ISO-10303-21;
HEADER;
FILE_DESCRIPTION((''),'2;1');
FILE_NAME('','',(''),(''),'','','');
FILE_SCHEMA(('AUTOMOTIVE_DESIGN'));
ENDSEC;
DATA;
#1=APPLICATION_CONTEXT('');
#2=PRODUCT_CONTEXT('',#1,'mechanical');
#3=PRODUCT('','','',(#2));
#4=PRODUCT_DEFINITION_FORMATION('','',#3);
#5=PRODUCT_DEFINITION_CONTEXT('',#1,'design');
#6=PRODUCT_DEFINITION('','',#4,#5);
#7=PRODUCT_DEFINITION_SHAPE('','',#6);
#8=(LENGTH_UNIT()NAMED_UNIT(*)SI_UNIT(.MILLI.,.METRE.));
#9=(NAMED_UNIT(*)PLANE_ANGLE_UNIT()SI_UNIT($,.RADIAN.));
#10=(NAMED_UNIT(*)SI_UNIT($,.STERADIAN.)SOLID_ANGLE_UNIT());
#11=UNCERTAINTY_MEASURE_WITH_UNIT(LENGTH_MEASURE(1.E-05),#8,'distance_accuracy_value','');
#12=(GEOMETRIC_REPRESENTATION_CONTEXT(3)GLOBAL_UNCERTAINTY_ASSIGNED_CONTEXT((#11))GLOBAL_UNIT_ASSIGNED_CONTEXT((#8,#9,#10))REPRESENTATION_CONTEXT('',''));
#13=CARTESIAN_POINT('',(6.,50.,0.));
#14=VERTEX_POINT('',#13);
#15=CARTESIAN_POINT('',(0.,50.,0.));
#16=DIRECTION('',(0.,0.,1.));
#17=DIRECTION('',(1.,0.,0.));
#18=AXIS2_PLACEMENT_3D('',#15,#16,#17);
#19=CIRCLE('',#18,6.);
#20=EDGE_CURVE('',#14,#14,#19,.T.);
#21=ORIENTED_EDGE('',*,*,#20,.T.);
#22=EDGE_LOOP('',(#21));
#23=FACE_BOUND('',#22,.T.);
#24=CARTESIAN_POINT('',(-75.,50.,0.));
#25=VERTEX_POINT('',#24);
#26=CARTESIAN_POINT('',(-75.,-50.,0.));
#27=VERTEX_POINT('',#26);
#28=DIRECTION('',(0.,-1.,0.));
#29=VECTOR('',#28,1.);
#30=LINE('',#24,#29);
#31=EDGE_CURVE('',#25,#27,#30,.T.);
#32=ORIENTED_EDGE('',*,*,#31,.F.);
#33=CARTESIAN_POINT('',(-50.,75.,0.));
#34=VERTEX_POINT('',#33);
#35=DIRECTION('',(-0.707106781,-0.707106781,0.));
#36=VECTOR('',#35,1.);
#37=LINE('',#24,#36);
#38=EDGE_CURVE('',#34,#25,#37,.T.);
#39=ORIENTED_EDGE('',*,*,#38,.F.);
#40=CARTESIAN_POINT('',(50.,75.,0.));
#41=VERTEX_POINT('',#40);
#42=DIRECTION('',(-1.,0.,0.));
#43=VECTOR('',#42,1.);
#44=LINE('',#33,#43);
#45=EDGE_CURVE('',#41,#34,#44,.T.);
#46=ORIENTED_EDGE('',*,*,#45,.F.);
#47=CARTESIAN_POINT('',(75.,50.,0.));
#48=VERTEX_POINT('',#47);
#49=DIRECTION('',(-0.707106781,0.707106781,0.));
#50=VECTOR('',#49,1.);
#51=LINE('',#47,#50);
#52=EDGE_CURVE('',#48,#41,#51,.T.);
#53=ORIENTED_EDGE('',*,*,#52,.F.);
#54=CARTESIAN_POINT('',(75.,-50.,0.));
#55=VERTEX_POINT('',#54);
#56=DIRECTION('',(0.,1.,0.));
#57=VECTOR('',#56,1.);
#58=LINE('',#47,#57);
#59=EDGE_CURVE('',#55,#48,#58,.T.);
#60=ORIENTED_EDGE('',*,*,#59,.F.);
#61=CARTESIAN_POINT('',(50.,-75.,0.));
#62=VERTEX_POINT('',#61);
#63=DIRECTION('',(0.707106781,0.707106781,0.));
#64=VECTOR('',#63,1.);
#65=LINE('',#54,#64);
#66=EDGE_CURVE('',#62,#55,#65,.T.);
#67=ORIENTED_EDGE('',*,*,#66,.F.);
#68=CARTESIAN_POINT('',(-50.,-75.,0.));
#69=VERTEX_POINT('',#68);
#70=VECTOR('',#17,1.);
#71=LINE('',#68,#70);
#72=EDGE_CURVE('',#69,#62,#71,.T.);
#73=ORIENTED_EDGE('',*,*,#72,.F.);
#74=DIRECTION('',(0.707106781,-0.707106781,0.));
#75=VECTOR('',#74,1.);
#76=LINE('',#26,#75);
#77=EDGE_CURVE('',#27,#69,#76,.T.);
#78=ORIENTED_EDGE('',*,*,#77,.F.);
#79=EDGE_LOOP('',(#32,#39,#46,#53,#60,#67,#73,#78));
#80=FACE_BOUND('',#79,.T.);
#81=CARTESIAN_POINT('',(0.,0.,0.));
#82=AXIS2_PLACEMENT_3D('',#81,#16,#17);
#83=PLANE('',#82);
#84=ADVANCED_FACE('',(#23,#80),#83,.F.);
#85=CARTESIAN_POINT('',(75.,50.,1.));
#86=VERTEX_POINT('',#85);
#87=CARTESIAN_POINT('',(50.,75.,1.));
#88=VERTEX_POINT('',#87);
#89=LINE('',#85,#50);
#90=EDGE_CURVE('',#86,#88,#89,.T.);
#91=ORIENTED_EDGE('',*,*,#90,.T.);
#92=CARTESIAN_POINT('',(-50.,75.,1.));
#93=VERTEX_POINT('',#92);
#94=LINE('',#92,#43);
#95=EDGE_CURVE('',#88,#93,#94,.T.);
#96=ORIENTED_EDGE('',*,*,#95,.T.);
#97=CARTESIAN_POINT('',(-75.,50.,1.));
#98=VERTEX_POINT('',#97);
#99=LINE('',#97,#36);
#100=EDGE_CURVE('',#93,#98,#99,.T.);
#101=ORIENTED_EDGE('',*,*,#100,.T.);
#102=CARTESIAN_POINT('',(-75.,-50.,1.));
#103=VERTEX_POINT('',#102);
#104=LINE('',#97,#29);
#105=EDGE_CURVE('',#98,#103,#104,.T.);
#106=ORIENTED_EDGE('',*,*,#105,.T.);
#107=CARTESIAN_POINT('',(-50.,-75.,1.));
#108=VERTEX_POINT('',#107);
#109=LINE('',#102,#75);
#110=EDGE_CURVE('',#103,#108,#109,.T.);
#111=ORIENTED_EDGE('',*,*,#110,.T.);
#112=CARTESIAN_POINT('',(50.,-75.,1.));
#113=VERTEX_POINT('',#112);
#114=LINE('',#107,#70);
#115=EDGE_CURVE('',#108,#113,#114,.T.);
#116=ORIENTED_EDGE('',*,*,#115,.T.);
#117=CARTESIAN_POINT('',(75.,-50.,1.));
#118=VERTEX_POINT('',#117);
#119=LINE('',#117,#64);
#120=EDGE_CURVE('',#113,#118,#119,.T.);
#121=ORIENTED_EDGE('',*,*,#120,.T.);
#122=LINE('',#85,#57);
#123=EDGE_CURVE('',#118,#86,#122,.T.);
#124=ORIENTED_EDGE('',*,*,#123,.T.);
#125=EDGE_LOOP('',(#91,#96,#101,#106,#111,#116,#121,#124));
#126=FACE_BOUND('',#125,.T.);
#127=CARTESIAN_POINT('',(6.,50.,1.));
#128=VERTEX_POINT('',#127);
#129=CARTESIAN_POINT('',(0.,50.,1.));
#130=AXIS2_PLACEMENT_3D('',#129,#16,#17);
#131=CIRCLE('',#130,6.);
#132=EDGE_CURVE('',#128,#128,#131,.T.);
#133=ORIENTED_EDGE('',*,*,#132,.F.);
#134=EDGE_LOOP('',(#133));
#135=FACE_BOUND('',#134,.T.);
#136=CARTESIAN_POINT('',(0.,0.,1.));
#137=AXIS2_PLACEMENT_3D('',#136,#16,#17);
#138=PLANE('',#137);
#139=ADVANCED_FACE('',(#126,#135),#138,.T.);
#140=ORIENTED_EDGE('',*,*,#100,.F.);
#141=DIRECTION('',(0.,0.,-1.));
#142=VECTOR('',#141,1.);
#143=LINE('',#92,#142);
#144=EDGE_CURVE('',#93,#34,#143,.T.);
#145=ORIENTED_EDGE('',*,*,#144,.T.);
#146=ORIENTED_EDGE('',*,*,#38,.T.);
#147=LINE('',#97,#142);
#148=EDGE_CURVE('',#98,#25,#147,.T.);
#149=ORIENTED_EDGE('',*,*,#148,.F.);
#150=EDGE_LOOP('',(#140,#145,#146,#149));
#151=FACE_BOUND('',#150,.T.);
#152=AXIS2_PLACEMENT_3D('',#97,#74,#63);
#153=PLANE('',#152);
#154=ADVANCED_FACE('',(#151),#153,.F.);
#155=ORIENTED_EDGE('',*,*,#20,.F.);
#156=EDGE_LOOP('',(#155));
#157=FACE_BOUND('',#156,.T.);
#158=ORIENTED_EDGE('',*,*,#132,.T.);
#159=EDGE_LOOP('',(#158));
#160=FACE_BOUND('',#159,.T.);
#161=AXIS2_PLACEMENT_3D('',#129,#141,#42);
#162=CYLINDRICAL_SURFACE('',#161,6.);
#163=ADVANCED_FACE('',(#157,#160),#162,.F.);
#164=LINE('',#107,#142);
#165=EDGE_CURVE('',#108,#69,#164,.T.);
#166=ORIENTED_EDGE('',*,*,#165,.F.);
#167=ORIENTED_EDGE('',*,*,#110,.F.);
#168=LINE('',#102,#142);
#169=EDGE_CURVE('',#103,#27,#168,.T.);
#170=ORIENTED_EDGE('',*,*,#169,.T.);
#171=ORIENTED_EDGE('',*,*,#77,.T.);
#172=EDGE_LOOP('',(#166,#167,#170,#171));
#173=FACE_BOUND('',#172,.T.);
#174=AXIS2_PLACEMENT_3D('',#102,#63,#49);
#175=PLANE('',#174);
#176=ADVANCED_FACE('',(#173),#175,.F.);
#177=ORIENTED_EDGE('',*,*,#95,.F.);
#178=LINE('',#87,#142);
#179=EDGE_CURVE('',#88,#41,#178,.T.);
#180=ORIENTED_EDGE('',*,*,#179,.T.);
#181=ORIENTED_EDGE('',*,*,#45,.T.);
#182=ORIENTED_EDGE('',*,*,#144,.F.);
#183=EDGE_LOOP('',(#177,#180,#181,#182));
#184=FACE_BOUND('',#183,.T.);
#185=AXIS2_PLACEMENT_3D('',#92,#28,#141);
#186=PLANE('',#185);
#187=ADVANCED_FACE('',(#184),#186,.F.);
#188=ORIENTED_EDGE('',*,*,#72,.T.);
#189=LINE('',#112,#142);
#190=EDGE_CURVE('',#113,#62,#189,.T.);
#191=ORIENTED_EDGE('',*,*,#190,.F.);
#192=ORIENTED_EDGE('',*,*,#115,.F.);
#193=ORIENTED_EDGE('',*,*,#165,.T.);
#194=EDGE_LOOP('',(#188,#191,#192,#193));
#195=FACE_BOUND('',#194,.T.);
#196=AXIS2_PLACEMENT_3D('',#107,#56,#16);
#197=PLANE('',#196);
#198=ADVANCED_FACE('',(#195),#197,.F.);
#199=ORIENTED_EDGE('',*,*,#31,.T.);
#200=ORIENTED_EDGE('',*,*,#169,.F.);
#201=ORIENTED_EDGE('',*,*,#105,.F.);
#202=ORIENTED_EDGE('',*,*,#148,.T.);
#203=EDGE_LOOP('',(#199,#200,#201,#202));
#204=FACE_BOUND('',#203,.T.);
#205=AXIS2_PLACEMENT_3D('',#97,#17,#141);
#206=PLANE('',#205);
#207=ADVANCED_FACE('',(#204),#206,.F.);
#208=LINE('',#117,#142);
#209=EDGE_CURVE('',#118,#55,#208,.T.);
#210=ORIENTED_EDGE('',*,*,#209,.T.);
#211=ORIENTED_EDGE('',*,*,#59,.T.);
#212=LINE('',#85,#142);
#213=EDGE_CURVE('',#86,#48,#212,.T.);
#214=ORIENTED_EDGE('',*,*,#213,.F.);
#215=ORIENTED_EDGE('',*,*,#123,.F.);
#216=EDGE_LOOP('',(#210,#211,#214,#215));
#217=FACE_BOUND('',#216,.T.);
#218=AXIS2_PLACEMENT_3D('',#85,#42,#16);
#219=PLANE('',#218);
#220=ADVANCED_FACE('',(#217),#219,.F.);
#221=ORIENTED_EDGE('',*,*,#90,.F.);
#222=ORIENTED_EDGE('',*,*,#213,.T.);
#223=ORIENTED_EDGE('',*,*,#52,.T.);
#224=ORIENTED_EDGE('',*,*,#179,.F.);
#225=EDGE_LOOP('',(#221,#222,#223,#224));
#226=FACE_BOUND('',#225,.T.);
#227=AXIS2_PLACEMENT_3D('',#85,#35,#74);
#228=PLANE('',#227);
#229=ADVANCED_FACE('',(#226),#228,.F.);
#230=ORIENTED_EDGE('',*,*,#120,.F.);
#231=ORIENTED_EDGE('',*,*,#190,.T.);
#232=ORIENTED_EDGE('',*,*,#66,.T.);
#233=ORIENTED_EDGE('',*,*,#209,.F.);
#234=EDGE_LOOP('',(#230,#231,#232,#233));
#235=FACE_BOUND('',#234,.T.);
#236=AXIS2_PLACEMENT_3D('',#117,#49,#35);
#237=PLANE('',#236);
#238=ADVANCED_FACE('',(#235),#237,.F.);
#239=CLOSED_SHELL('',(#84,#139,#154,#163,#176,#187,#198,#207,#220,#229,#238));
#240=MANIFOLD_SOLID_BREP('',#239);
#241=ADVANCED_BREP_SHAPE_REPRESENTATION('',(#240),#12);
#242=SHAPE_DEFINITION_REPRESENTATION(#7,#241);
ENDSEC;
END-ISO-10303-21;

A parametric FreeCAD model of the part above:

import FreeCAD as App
import Part
import Sketcher

V = App.Vector


def add_polygon(sketch, points):
    """Adds a closed chain of lines whose ends are joined by coincident constraints."""
    first, n = sketch.GeometryCount, len(points)
    for a, b in zip(points, points[1:] + points[:1]):
        sketch.addGeometry(Part.LineSegment(App.Vector(*a, 0), App.Vector(*b, 0)), False)
    for i in range(n):
        sketch.addConstraint(Sketcher.Constraint("Coincident", first + i, 2, first + (i + 1) % n, 1))

doc = App.newDocument("Part")
body = doc.addObject("PartDesign::Body", "Body")

# Sketch on XY plane
sketch1 = body.newObject("Sketcher::SketchObject", "Sketch")
sketch1.AttachmentSupport = (doc.getObject("XY_Plane"), [""])
sketch1.MapMode = "FlatFace"
add_polygon(sketch1, [(-50, 75), (-75, 50), (-75, -50), (-50, -75), (50, -75), (75, -50), (75, 50), (50, 75)])  # lines 0-7
sketch1.addGeometry(Part.Circle(V(0, 50, 0), V(0, 0, 1), 6), False)  # 8
sketch1.addConstraint(Sketcher.Constraint("Vertical", 1))
sketch1.addConstraint(Sketcher.Constraint("Horizontal", 3))
sketch1.addConstraint(Sketcher.Constraint("Vertical", 5))
sketch1.addConstraint(Sketcher.Constraint("Horizontal", 7))
sketch1.addConstraint(Sketcher.Constraint("Symmetric", 0, 2, 4, 2, -1, 1))
sketch1.addConstraint(Sketcher.Constraint("Symmetric", 2, 2, 6, 2, -1, 1))
sketch1.addConstraint(Sketcher.Constraint("PointOnObject", 8, 3, -2))
sketch1.addConstraint(Sketcher.Constraint("Perpendicular", 0, 2))
sketch1.addConstraint(Sketcher.Constraint("Perpendicular", 2, 4))
sketch1.addConstraint(Sketcher.Constraint("Perpendicular", 4, 6))
sketch1.addConstraint(Sketcher.Constraint("Horizontal", 8, 3, 0, 2))
sketch1.addConstraint(Sketcher.Constraint("Horizontal", 1, 2, 4, 2))
sketch1.addConstraint(Sketcher.Constraint("Vertical", 3, 2, 6, 2))
sketch1.addConstraint(Sketcher.Constraint("Equal", 7, 1))
sketch1.addConstraint(Sketcher.Constraint("Diameter", 8, 12.0))
sketch1.addConstraint(Sketcher.Constraint("DistanceX", 3, 1, 3, 2, 100.0))
sketch1.addConstraint(Sketcher.Constraint("DistanceX", 0, 2, -1, 1, 75.0))
pad1 = body.newObject("PartDesign::Pad", "Pad")
pad1.Profile = sketch1
pad1.Length = 1

doc.recompute()
